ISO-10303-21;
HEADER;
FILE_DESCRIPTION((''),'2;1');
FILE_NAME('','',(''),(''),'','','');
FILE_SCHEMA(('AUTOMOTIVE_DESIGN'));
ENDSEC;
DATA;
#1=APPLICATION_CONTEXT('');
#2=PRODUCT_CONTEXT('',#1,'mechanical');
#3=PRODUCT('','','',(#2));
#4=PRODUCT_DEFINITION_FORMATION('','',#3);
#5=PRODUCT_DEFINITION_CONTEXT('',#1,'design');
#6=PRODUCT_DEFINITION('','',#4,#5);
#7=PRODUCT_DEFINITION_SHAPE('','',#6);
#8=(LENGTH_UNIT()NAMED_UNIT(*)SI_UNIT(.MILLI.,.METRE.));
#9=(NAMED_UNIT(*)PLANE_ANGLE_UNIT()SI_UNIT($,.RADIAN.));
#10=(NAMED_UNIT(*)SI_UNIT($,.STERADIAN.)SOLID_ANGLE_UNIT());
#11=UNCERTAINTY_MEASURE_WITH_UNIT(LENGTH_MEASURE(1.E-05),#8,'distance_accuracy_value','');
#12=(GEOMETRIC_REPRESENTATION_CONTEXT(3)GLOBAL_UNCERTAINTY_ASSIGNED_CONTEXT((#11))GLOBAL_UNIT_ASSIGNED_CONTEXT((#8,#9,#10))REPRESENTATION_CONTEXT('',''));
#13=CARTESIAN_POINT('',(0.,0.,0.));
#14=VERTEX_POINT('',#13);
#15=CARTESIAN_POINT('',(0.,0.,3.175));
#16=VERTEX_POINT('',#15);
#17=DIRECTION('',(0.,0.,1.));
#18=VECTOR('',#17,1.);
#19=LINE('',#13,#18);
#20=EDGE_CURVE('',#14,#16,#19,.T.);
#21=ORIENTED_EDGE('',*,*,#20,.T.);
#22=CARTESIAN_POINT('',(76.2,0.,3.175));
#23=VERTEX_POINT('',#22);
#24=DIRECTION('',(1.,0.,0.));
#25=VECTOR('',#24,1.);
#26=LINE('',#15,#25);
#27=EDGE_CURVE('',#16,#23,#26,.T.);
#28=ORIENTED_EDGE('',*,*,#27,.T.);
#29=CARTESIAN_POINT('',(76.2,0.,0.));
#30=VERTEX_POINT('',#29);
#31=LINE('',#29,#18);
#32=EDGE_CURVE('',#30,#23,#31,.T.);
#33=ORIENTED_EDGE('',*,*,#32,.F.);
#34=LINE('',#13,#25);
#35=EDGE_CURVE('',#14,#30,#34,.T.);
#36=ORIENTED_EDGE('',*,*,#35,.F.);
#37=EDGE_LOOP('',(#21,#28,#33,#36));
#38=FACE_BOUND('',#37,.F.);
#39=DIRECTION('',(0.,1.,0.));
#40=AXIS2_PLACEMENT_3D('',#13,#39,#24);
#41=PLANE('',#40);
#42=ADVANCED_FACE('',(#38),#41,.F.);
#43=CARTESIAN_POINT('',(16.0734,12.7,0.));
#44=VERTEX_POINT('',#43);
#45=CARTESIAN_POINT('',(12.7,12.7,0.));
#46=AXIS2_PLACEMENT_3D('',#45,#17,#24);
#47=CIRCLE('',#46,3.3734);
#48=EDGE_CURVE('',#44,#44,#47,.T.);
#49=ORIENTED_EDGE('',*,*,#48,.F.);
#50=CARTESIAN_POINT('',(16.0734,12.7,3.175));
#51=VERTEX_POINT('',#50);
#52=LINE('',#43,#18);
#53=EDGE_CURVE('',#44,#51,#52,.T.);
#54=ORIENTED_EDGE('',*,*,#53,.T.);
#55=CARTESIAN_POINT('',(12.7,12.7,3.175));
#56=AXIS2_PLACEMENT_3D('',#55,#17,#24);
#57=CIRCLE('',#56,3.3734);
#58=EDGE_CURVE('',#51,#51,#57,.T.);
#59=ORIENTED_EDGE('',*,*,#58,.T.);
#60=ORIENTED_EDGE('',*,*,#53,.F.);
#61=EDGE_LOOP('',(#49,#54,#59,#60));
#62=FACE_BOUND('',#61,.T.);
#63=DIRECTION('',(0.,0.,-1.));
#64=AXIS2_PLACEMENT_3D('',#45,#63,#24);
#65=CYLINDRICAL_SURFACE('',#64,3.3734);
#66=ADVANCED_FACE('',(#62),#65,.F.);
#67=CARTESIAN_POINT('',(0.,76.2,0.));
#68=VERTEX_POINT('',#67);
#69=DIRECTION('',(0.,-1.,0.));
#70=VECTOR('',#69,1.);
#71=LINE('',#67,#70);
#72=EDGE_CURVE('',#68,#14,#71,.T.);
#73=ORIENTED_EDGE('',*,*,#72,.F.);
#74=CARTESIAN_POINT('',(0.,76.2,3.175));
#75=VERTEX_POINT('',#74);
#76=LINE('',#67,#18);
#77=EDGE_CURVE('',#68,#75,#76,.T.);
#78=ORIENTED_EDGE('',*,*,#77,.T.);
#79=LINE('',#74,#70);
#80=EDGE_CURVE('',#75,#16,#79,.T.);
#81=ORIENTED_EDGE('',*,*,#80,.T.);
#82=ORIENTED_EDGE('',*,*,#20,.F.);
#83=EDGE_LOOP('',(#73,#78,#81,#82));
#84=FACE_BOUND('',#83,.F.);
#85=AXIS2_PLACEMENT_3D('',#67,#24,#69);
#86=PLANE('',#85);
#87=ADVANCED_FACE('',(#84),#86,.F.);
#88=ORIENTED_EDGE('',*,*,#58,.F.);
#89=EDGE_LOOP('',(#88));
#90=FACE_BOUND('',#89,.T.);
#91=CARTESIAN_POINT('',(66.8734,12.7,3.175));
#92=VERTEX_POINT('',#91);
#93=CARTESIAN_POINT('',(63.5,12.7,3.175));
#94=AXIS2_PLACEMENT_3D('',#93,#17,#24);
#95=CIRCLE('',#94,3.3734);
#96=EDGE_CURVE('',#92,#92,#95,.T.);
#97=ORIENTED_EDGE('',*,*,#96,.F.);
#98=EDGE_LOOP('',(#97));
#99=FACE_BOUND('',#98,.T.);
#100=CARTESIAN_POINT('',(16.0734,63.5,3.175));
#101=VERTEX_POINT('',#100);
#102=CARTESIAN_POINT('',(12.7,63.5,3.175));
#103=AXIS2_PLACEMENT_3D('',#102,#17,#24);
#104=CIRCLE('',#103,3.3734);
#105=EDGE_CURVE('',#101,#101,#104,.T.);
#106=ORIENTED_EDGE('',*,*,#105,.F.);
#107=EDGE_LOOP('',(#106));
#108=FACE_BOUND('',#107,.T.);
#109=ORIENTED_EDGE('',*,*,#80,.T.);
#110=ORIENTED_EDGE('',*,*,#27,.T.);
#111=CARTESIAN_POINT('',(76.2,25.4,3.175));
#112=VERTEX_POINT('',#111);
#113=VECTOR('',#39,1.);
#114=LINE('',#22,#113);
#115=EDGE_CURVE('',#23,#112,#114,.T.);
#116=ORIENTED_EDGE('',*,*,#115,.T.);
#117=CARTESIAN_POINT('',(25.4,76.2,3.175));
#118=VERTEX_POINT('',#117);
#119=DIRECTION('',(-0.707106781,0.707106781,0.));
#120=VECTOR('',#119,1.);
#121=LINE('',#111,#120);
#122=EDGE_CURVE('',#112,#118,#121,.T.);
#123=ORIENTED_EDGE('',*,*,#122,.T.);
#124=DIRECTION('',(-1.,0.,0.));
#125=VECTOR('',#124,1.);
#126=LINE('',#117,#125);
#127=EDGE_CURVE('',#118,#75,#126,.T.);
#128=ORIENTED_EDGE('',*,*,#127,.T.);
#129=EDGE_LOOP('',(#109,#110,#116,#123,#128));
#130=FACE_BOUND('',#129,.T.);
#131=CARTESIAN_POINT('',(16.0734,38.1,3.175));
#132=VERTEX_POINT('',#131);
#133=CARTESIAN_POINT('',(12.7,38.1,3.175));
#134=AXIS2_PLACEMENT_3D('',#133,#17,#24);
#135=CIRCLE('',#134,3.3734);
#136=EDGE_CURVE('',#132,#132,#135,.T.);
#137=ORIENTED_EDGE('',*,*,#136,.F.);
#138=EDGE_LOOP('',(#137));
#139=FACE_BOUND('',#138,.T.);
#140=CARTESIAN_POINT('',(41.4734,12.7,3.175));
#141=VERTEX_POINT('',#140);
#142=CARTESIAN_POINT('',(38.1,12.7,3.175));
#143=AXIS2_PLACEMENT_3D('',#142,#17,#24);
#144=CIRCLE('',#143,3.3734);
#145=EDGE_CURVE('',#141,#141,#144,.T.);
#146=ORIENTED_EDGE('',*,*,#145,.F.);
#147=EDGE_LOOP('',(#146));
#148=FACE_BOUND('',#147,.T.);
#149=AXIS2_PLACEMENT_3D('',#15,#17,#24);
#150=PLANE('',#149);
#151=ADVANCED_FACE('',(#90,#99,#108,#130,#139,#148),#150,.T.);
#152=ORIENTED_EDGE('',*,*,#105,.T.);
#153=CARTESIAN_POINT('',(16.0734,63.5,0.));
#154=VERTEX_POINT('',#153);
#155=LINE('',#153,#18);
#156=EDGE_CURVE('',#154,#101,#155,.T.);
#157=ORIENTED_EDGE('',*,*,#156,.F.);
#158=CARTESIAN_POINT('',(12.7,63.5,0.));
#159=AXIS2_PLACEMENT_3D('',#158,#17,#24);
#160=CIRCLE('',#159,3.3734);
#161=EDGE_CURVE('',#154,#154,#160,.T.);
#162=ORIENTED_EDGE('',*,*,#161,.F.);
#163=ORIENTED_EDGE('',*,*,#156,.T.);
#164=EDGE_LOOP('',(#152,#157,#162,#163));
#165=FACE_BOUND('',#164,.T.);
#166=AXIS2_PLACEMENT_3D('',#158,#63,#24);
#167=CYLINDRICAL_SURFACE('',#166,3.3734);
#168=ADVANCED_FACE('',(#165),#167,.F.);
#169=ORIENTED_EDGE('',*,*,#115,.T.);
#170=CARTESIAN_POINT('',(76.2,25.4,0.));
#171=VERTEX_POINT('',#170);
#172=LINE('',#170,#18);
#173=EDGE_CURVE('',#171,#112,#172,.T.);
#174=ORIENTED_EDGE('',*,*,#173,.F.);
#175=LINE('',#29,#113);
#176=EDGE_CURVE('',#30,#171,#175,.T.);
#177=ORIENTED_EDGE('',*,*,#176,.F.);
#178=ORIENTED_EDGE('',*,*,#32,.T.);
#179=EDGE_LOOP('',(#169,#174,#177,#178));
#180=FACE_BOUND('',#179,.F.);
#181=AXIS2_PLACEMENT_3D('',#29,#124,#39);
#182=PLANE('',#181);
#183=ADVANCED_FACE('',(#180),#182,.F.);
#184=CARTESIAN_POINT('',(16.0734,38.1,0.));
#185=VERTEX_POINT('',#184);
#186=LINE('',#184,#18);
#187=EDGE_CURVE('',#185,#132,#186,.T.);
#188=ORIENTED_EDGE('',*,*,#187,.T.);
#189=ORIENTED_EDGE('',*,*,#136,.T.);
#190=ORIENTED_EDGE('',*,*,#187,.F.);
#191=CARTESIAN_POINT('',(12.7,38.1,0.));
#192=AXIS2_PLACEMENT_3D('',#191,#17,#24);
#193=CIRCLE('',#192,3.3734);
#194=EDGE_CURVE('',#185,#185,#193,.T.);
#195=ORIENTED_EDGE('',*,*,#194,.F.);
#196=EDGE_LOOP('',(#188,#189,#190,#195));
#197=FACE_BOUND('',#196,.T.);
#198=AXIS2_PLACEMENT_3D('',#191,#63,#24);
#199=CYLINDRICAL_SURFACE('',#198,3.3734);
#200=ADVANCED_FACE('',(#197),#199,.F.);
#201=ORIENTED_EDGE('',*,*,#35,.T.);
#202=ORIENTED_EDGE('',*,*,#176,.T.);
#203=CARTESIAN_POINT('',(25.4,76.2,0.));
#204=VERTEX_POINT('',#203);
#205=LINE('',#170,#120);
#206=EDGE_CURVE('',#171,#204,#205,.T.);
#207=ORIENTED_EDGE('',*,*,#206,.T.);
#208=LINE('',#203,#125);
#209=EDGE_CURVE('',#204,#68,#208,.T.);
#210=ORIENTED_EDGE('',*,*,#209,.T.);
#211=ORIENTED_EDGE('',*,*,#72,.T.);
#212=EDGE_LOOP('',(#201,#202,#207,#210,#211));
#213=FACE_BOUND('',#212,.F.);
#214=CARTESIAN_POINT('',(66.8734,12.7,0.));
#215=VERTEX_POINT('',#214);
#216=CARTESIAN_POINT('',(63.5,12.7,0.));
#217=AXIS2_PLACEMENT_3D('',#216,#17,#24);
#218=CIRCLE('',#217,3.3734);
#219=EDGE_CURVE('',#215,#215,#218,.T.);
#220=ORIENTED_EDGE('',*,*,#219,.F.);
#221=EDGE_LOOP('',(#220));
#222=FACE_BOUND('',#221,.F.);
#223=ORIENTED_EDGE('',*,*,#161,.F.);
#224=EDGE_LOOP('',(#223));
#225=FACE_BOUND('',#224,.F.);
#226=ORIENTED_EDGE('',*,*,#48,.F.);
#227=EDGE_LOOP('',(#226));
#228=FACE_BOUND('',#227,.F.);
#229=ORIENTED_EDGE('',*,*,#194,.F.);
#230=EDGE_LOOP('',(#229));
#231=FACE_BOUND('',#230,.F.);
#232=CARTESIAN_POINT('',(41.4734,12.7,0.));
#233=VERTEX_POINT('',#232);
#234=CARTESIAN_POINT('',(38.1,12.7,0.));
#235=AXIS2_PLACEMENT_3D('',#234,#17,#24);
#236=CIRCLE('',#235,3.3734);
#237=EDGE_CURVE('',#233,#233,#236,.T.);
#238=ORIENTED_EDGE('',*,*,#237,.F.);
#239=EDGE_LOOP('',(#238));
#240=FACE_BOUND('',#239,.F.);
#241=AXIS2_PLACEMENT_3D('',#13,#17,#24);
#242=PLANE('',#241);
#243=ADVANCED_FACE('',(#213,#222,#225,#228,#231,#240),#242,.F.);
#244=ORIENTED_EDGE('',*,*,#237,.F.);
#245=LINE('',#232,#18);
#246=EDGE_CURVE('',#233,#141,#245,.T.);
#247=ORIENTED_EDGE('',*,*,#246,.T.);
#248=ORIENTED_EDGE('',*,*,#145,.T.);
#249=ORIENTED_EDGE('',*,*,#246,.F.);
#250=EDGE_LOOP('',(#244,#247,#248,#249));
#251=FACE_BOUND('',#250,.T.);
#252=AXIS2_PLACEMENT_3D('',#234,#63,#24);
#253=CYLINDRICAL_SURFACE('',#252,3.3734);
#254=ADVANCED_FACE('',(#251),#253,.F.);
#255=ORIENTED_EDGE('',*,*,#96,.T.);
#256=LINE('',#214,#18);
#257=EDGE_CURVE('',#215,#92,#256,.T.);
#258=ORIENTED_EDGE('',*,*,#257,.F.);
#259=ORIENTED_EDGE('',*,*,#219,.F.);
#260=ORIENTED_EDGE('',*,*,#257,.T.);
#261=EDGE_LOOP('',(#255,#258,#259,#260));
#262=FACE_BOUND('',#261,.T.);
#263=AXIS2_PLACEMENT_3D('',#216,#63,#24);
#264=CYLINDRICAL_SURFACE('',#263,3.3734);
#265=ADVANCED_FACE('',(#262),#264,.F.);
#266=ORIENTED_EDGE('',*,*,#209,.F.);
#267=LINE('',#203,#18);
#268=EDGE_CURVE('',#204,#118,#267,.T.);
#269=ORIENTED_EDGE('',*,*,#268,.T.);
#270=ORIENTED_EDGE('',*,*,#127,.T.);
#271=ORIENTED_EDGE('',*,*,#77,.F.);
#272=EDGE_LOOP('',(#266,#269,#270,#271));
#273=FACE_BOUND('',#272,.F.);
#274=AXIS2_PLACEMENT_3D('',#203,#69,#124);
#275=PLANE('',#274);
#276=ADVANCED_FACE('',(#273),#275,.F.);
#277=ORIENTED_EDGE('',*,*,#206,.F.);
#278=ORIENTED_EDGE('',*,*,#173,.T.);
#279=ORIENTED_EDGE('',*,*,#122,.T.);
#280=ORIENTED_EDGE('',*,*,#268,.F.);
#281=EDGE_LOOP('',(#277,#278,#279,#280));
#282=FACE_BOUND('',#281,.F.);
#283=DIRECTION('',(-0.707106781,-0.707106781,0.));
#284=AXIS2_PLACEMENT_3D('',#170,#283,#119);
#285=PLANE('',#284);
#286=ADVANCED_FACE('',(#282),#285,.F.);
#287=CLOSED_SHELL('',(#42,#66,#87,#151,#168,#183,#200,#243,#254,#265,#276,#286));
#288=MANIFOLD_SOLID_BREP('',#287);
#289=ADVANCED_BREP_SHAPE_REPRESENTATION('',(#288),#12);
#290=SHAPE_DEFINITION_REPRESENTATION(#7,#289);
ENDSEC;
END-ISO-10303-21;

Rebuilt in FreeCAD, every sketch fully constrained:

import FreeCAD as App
import Part
import Sketcher
Q = App.Units.Quantity

doc = App.newDocument("Part")
body = doc.addObject("PartDesign::Body", "Body")

# Sketch on XY plane
sketch1 = body.newObject("Sketcher::SketchObject", "Sketch")
sketch1.AttachmentSupport = (doc.getObject("XY_Plane"), [""])
sketch1.MapMode = "FlatFace"
sketch1.addGeometry([
    Part.LineSegment(App.Vector(0, 76.2, 0), App.Vector(0, 0, 0)),  # 0
    Part.LineSegment(App.Vector(0, 0, 0), App.Vector(76.2, 0, 0)),  # 1
    Part.LineSegment(App.Vector(76.2, 0, 0), App.Vector(76.2, 25.4, 0)),  # 2
    Part.LineSegment(App.Vector(76.2, 25.4, 0), App.Vector(25.4, 76.2, 0)),  # 3
    Part.LineSegment(App.Vector(25.4, 76.2, 0), App.Vector(0, 76.2, 0)),  # 4
    Part.Circle(App.Vector(12.7, 12.7, 0), App.Vector(0, 0, 1), 3.4),  # 5
    Part.Circle(App.Vector(38.1, 12.7, 0), App.Vector(0, 0, 1), 3.4),  # 6
    Part.Circle(App.Vector(63.5, 12.7, 0), App.Vector(0, 0, 1), 3.4),  # 7
    Part.Circle(App.Vector(12.7, 38.1, 0), App.Vector(0, 0, 1), 3.4),  # 8
    Part.Circle(App.Vector(12.7, 63.5, 0), App.Vector(0, 0, 1), 3.4),  # 9
], False)
sketch1.addConstraint([
    Sketcher.Constraint("Coincident", 0, 2, 1, 1),
    Sketcher.Constraint("Coincident", 1, 2, 2, 1),
    Sketcher.Constraint("Coincident", 2, 2, 3, 1),
    Sketcher.Constraint("Coincident", 3, 2, 4, 1),
    Sketcher.Constraint("Coincident", 4, 2, 0, 1),
    Sketcher.Constraint("Vertical", 0),
    Sketcher.Constraint("Horizontal", 1),
    Sketcher.Constraint("Vertical", 2),
    Sketcher.Constraint("Horizontal", 4),
    Sketcher.Constraint("Coincident", 0, 2, -1, 1),
    Sketcher.Constraint("Equal", 5, 6),
    Sketcher.Constraint("Equal", 6, 7),
    Sketcher.Constraint("Equal", 7, 8),
    Sketcher.Constraint("Equal", 8, 9),
    Sketcher.Constraint("Horizontal", 5, 3, 6, 3),
    Sketcher.Constraint("Horizontal", 6, 3, 7, 3),
    Sketcher.Constraint("Vertical", 5, 3, 8, 3),
    Sketcher.Constraint("Vertical", 8, 3, 9, 3),
    Sketcher.Constraint("Equal", 1, 0),
    Sketcher.Constraint("Equal", 4, 2),
    Sketcher.Constraint("DistanceX", 1, 1, 1, 2, Q("3 in")),
    Sketcher.Constraint("DistanceX", 4, 2, 4, 1, Q("1 in")),
    Sketcher.Constraint("Diameter", 5, Q("0.265622 in")),
    Sketcher.Constraint("DistanceX", 5, 3, 6, 3, Q("1 in")),
    Sketcher.Constraint("DistanceX", 6, 3, 7, 3, Q("1 in")),
    Sketcher.Constraint("DistanceY", 5, 3, 8, 3, Q("1 in")),
    Sketcher.Constraint("DistanceY", 8, 3, 9, 3, Q("1 in")),
    Sketcher.Constraint("DistanceX", -1, 1, 5, 3, Q("0.5 in")),
    Sketcher.Constraint("DistanceY", -1, 1, 5, 3, Q("0.5 in")),
])
pad1 = body.newObject("PartDesign::Pad", "Pad")
pad1.Profile = sketch1
pad1.Length = Q("0.125 in")

doc.recompute()
